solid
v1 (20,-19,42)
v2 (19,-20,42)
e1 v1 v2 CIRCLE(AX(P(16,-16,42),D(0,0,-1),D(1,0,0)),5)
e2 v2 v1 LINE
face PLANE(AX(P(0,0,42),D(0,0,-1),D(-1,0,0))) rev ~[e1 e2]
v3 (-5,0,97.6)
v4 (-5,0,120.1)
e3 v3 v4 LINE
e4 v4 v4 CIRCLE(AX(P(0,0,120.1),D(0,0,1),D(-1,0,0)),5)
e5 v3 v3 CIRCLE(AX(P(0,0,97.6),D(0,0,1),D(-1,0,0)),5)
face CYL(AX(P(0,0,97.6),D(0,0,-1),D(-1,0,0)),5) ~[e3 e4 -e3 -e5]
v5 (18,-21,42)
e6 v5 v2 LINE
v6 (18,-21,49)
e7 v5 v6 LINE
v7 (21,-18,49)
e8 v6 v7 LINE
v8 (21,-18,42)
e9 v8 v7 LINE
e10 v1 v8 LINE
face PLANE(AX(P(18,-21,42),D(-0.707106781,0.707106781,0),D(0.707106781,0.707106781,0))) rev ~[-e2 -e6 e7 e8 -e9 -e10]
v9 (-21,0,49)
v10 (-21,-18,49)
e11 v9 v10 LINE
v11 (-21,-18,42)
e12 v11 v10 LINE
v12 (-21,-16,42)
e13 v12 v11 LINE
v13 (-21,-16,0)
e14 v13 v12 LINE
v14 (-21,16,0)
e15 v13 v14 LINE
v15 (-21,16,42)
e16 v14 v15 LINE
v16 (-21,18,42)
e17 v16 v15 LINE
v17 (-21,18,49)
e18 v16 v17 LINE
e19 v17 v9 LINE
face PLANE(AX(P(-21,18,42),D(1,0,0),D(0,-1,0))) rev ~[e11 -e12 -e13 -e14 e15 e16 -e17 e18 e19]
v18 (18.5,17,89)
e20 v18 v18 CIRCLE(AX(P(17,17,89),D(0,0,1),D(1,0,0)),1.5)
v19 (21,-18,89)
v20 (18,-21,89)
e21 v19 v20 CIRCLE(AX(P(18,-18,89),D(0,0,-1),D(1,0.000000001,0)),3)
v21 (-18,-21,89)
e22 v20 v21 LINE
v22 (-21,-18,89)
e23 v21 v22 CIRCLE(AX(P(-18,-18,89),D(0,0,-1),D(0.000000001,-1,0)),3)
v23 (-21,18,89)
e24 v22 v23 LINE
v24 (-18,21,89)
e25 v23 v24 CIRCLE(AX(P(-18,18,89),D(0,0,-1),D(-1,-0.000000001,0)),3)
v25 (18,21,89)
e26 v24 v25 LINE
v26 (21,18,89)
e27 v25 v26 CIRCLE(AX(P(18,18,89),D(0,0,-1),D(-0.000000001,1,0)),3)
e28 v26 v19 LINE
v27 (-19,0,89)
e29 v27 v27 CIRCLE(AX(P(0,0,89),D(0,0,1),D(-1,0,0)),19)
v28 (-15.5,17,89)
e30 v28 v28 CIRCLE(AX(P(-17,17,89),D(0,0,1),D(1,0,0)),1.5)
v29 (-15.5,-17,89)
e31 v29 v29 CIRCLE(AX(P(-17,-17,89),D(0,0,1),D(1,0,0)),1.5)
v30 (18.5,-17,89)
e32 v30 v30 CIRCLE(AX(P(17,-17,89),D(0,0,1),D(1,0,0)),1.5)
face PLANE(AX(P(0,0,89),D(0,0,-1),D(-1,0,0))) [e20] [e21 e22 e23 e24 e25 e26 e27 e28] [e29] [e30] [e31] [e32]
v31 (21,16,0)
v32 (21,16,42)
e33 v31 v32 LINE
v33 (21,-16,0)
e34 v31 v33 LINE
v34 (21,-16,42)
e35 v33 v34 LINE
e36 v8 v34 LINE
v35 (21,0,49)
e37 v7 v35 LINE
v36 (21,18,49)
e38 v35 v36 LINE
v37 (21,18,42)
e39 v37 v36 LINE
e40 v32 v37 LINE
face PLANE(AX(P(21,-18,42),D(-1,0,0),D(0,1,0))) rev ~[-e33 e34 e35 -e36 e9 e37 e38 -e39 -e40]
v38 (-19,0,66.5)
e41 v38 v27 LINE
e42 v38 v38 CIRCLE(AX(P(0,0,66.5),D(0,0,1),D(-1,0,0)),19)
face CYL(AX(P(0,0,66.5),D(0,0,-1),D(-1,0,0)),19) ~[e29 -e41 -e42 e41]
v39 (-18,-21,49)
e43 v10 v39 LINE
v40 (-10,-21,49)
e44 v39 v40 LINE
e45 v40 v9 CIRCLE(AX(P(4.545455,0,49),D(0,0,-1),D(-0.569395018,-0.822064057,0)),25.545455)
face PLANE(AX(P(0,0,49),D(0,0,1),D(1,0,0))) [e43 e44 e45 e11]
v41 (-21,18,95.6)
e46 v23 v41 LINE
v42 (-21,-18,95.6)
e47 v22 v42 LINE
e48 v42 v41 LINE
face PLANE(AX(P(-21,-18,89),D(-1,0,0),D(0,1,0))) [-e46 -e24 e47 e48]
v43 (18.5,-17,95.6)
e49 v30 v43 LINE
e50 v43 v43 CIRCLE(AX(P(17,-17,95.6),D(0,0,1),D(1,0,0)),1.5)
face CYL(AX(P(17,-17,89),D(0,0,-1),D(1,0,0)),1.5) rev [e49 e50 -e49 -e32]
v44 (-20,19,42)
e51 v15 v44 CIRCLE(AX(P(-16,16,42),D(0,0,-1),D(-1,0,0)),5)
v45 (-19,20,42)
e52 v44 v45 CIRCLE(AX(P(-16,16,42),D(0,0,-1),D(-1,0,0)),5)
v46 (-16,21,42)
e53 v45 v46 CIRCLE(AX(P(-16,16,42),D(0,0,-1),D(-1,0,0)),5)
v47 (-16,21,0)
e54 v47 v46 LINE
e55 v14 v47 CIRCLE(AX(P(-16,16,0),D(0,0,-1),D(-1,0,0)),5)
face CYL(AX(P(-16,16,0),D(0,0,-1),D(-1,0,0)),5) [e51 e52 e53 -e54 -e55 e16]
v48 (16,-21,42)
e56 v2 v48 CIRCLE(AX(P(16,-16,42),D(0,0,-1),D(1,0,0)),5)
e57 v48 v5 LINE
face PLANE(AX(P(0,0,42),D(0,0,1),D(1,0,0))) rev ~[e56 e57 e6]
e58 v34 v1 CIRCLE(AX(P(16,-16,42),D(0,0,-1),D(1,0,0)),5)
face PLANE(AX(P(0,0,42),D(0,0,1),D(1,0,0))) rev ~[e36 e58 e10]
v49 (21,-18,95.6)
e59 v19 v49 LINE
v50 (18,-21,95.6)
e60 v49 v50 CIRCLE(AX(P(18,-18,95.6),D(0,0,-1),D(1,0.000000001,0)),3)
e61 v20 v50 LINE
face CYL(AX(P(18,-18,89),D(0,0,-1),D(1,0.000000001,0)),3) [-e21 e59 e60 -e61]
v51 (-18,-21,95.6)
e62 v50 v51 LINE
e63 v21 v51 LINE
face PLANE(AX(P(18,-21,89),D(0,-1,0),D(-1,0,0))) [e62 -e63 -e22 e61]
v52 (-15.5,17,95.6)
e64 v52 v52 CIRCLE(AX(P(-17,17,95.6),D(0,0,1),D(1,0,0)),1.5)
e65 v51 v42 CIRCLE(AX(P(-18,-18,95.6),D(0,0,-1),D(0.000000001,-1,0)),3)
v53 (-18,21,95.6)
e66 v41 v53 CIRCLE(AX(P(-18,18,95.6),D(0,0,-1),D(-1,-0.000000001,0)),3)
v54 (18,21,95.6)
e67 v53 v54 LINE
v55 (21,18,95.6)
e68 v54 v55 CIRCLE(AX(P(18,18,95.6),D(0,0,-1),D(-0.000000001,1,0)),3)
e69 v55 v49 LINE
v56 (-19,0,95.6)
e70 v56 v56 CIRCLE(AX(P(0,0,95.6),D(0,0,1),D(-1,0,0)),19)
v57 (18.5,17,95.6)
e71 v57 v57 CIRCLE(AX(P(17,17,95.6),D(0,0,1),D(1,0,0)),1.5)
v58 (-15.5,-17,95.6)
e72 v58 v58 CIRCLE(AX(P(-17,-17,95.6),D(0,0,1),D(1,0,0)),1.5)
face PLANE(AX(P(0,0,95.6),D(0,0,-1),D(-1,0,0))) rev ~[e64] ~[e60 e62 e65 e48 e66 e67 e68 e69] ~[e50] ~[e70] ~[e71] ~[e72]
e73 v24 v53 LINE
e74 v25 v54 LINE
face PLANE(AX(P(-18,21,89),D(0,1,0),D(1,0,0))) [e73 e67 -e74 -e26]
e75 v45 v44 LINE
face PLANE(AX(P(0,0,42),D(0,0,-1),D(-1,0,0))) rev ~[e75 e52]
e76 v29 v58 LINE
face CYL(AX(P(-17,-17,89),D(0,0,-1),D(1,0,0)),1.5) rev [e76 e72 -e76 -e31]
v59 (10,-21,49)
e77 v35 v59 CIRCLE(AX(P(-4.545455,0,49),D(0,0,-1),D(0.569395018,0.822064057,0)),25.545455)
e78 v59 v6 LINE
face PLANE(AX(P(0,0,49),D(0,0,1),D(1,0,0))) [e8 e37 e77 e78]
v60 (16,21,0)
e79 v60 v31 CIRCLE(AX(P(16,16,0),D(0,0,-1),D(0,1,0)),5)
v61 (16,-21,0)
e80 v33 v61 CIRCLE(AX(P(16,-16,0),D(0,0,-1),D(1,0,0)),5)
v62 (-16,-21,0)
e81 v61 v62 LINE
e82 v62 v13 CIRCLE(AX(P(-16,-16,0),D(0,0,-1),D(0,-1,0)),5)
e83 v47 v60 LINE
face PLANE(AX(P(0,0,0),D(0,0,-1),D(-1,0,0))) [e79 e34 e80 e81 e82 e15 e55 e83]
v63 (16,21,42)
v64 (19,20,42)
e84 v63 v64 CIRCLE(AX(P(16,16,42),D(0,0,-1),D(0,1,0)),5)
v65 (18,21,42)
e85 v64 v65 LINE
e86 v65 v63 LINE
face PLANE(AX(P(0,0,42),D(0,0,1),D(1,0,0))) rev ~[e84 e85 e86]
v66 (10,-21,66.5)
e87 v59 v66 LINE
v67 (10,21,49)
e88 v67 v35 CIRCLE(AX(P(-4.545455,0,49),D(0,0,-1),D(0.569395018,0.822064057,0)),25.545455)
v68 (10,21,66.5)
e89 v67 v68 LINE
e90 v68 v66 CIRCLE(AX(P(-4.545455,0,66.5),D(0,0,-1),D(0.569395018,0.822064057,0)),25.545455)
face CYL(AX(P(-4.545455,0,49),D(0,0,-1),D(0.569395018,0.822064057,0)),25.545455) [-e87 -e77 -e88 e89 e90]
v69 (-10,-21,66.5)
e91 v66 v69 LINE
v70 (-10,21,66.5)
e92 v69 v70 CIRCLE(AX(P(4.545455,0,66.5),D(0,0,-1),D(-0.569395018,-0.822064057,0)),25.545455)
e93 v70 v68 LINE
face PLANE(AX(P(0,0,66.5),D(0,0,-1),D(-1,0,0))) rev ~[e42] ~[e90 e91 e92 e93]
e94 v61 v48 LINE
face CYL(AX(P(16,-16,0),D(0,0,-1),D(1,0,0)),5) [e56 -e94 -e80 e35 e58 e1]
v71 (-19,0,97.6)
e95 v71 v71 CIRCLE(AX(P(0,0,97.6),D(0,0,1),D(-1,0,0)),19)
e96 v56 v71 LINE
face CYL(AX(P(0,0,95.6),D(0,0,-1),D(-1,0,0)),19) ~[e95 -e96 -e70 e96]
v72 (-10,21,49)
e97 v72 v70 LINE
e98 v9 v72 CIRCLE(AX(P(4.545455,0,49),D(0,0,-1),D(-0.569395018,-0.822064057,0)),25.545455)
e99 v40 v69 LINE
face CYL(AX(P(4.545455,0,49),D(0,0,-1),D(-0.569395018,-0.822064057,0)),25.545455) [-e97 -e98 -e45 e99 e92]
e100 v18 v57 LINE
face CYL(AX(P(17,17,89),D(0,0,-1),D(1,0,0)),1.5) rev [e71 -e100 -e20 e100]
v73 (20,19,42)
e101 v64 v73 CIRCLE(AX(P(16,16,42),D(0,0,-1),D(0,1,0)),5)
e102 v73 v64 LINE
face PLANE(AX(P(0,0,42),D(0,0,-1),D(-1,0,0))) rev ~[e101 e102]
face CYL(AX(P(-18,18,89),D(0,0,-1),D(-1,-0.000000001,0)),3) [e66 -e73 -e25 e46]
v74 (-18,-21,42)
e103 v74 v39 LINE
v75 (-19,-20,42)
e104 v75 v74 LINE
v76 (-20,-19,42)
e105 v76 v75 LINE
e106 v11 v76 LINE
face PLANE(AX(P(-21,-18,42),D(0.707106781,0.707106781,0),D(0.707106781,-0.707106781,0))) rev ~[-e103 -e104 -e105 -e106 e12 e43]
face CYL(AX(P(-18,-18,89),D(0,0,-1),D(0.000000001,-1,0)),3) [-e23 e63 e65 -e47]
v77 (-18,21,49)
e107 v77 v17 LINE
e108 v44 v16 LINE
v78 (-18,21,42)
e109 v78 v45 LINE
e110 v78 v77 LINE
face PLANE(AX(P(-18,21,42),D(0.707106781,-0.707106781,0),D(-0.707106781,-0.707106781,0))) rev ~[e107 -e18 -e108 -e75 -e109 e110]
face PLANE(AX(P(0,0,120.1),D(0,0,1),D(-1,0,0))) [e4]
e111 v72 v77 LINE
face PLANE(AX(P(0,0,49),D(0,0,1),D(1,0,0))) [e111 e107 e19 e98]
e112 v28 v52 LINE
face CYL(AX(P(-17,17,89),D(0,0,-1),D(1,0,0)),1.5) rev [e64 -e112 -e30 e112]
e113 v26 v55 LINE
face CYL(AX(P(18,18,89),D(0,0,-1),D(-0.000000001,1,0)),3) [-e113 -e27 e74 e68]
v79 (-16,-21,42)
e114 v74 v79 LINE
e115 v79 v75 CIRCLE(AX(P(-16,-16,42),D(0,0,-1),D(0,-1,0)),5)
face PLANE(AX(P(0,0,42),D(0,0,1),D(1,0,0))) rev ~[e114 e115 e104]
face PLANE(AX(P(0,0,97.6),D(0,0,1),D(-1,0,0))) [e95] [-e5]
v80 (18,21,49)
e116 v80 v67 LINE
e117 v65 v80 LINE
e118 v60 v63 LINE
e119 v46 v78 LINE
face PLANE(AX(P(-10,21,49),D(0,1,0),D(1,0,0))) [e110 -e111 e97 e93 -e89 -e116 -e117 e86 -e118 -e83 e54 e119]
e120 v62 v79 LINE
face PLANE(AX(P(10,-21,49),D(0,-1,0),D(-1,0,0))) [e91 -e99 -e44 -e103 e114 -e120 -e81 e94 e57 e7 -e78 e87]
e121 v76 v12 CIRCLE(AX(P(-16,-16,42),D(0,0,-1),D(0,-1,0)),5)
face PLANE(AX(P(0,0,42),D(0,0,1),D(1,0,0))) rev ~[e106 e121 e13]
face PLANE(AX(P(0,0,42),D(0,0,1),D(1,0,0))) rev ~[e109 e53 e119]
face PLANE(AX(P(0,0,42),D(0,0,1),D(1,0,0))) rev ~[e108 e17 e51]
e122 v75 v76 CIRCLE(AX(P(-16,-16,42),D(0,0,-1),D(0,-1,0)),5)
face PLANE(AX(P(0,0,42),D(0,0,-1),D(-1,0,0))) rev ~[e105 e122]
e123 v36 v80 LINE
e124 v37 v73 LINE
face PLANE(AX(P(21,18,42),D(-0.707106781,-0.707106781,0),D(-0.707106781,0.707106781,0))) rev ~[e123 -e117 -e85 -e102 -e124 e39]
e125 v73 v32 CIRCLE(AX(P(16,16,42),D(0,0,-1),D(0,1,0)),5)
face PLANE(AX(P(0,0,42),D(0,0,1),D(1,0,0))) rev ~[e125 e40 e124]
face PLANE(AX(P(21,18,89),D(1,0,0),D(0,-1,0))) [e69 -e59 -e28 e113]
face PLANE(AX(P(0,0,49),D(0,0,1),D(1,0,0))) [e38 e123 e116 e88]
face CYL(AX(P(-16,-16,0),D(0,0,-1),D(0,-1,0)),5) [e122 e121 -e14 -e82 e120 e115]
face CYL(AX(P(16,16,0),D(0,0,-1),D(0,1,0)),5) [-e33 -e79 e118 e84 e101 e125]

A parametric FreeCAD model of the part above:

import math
import FreeCAD as App
import Part
import Sketcher
from FreeCAD import Vector
Q = App.Units.Quantity


def add_polygon(sketch, points):
    """Adds a closed chain of lines whose ends are joined by coincident constraints."""
    first, n = sketch.GeometryCount, len(points)
    for a, b in zip(points, points[1:] + points[:1]):
        sketch.addGeometry(Part.LineSegment(App.Vector(*a, 0), App.Vector(*b, 0)), False)
    for i in range(n):
        sketch.addConstraint(Sketcher.Constraint("Coincident", first + i, 2, first + (i + 1) % n, 1))

doc = App.newDocument("Part")
body = doc.addObject("PartDesign::Body", "Body")

# Sketch on XY plane
sketch1 = body.newObject("Sketcher::SketchObject", "Sketch")
sketch1.AttachmentSupport = (doc.getObject("XY_Plane"), [""])
sketch1.MapMode = "FlatFace"
sketch1.addGeometry([
    Part.LineSegment(Vector(16, 21, 0), Vector(-16, 21, 0)),  # 0
    Part.ArcOfCircle(Part.Circle(Vector(-16, 16, 0), Vector(0, 0, 1), 5), math.radians(90), math.radians(180)),  # 1
    Part.LineSegment(Vector(-21, 16, 0), Vector(-21, -16, 0)),  # 2
    Part.ArcOfCircle(Part.Circle(Vector(-16, -16, 0), Vector(0, 0, 1), 5), math.radians(180), math.radians(270)),  # 3
    Part.LineSegment(Vector(-16, -21, 0), Vector(16, -21, 0)),  # 4
    Part.ArcOfCircle(Part.Circle(Vector(16, -16, 0), Vector(0, 0, 1), 5), math.radians(-90), math.radians(0)),  # 5
    Part.LineSegment(Vector(21, -16, 0), Vector(21, 16, 0)),  # 6
    Part.ArcOfCircle(Part.Circle(Vector(16, 16, 0), Vector(0, 0, 1), 5), math.radians(0), math.radians(90)),  # 7
], False)
sketch1.addConstraint([
    Sketcher.Constraint("Tangent", 0, 2, 1, 1),
    Sketcher.Constraint("Tangent", 1, 2, 2, 1),
    Sketcher.Constraint("Tangent", 2, 2, 3, 1),
    Sketcher.Constraint("Tangent", 3, 2, 4, 1),
    Sketcher.Constraint("Tangent", 4, 2, 5, 1),
    Sketcher.Constraint("Tangent", 5, 2, 6, 1),
    Sketcher.Constraint("Tangent", 6, 2, 7, 1),
    Sketcher.Constraint("Tangent", 7, 2, 0, 1),
    Sketcher.Constraint("Horizontal", 0),
    Sketcher.Constraint("Vertical", 2),
    Sketcher.Constraint("Horizontal", 4),
    Sketcher.Constraint("Vertical", 6),
    Sketcher.Constraint("Equal", 1, 3),
    Sketcher.Constraint("Equal", 3, 5),
    Sketcher.Constraint("Equal", 5, 7),
    Sketcher.Constraint("Symmetric", 1, 3, 5, 3, -1, 1),
    Sketcher.Constraint("Equal", 4, 2),
    Sketcher.Constraint("Radius", 1, Q("5 mm")),
    Sketcher.Constraint("DistanceX", 0, 2, 0, 1, Q("32 mm")),
])
pad1 = body.newObject("PartDesign::Pad", "Pad")
pad1.Profile = sketch1
pad1.Length = 42

# Sketch on XY plane
sketch2 = body.newObject("Sketcher::SketchObject", "Sketch001")
sketch2.AttachmentSupport = (doc.getObject("XY_Plane"), [""])
sketch2.MapMode = "FlatFace"
sketch2.AttachmentOffset = App.Placement(Vector(0, 0, 42), App.Rotation())
add_polygon(sketch2, [(18, 21), (-18, 21), (-21, 18), (-21, -18), (-18, -21), (18, -21), (21, -18), (21, 18)])  # lines 0-7
sketch2.addConstraint([
    Sketcher.Constraint("Horizontal", 0),
    Sketcher.Constraint("Vertical", 2),
    Sketcher.Constraint("Horizontal", 4),
    Sketcher.Constraint("Vertical", 6),
    Sketcher.Constraint("Symmetric", 0, 2, 4, 2, -1, 1),
    Sketcher.Constraint("Symmetric", 1, 2, 5, 2, -1, 1),
    Sketcher.Constraint("Perpendicular", 1, 3),
    Sketcher.Constraint("Perpendicular", 5, 7),
    Sketcher.Constraint("Horizontal", 2, 2, 5, 2),
    Sketcher.Constraint("Horizontal", 1, 2, 6, 2),
    Sketcher.Constraint("Vertical", 0, 2, 3, 2),
    Sketcher.Constraint("Equal", 4, 2),
    Sketcher.Constraint("DistanceX", 0, 2, 0, 1, Q("36 mm")),
    Sketcher.Constraint("DistanceY", -1, 1, 0, 2, Q("21 mm")),
])
pad2 = body.newObject("PartDesign::Pad", "Pad001")
pad2.Profile = sketch2
pad2.Length = 7

# Sketch on XY plane
sketch3 = body.newObject("Sketcher::SketchObject", "Sketch002")
sketch3.AttachmentSupport = (doc.getObject("XY_Plane"), [""])
sketch3.MapMode = "FlatFace"
sketch3.AttachmentOffset = App.Placement(Vector(0, 0, 49), App.Rotation())
sketch3.addGeometry([
    Part.LineSegment(Vector(10, 21, 0), Vector(-10, 21, 0)),
    Part.ArcOfCircle(Part.Circle(Vector(5, 0, 0), Vector(0, 0, 1), 26), math.radians(125), math.radians(235)),
    Part.LineSegment(Vector(-10, -21, 0), Vector(10, -21, 0)),
    Part.ArcOfCircle(Part.Circle(Vector(-5, 0, 0), Vector(0, 0, 1), 26), math.radians(-55), math.radians(55)),
], False)
sketch3.addConstraint([
    Sketcher.Constraint("Coincident", 0, 2, 1, 1),
    Sketcher.Constraint("Coincident", 1, 2, 2, 1),
    Sketcher.Constraint("Coincident", 2, 2, 3, 1),
    Sketcher.Constraint("Coincident", 3, 2, 0, 1),
    Sketcher.Constraint("Horizontal", 0),
    Sketcher.Constraint("Horizontal", 2),
    Sketcher.Constraint("Equal", 1, 3),
    Sketcher.Constraint("Symmetric", 1, 3, 3, 3, -1, 1),
    Sketcher.Constraint("Symmetric", 0, 2, 1, 2, -1),
    Sketcher.Constraint("DistanceX", 0, 2, 0, 1, Q("20 mm")),
    Sketcher.Constraint("DistanceY", -1, 1, 0, 2, Q("21 mm")),
    Sketcher.Constraint("Radius", 1, Q("25.545455 mm")),
])
pad3 = body.newObject("PartDesign::Pad", "Pad002")
pad3.Profile = sketch3
pad3.Length = 17.5

# Sketch on XY plane
sketch4 = body.newObject("Sketcher::SketchObject", "Sketch003")
sketch4.AttachmentSupport = (doc.getObject("XY_Plane"), [""])
sketch4.MapMode = "FlatFace"
sketch4.AttachmentOffset = App.Placement(Vector(0, 0, 66.5), App.Rotation())
sketch4.addGeometry(Part.Circle(Vector(0, 0, 0), Vector(0, 0, 1), 19), False)
sketch4.addConstraint([
    Sketcher.Constraint("Coincident", 0, 3, -1, 1),
    Sketcher.Constraint("Diameter", 0, Q("38 mm")),
])
pad4 = body.newObject("PartDesign::Pad", "Pad003")
pad4.Profile = sketch4
pad4.Length = 22.5

# Sketch on XY plane
sketch5 = body.newObject("Sketcher::SketchObject", "Sketch004")
sketch5.AttachmentSupport = (doc.getObject("XY_Plane"), [""])
sketch5.MapMode = "FlatFace"
sketch5.AttachmentOffset = App.Placement(Vector(0, 0, 89), App.Rotation())
sketch5.addGeometry([
    Part.LineSegment(Vector(18, 21, 0), Vector(-18, 21, 0)),  # 0
    Part.ArcOfCircle(Part.Circle(Vector(-18, 18, 0), Vector(0, 0, 1), 3), math.radians(90), math.radians(180)),  # 1
    Part.LineSegment(Vector(-21, 18, 0), Vector(-21, -18, 0)),  # 2
    Part.ArcOfCircle(Part.Circle(Vector(-18, -18, 0), Vector(0, 0, 1), 3), math.radians(180), math.radians(270)),  # 3
    Part.LineSegment(Vector(-18, -21, 0), Vector(18, -21, 0)),  # 4
    Part.ArcOfCircle(Part.Circle(Vector(18, -18, 0), Vector(0, 0, 1), 3), math.radians(-90), math.radians(0)),  # 5
    Part.LineSegment(Vector(21, -18, 0), Vector(21, 18, 0)),  # 6
    Part.ArcOfCircle(Part.Circle(Vector(18, 18, 0), Vector(0, 0, 1), 3), math.radians(0), math.radians(90)),  # 7
    Part.Circle(Vector(17, -17, 0), Vector(0, 0, 1), 1.5),  # 8
    Part.Circle(Vector(-17, -17, 0), Vector(0, 0, 1), 1.5),  # 9
    Part.Circle(Vector(17, 17, 0), Vector(0, 0, 1), 1.5),  # 10
    Part.Circle(Vector(-17, 17, 0), Vector(0, 0, 1), 1.5),  # 11
], False)
sketch5.addConstraint([
    Sketcher.Constraint("Tangent", 0, 2, 1, 1),
    Sketcher.Constraint("Tangent", 1, 2, 2, 1),
    Sketcher.Constraint("Tangent", 2, 2, 3, 1),
    Sketcher.Constraint("Tangent", 3, 2, 4, 1),
    Sketcher.Constraint("Tangent", 4, 2, 5, 1),
    Sketcher.Constraint("Tangent", 5, 2, 6, 1),
    Sketcher.Constraint("Tangent", 6, 2, 7, 1),
    Sketcher.Constraint("Tangent", 7, 2, 0, 1),
    Sketcher.Constraint("Horizontal", 0),
    Sketcher.Constraint("Vertical", 2),
    Sketcher.Constraint("Horizontal", 4),
    Sketcher.Constraint("Vertical", 6),
    Sketcher.Constraint("Equal", 1, 3),
    Sketcher.Constraint("Equal", 3, 5),
    Sketcher.Constraint("Equal", 5, 7),
    Sketcher.Constraint("Equal", 8, 9),
    Sketcher.Constraint("Equal", 9, 10),
    Sketcher.Constraint("Equal", 10, 11),
    Sketcher.Constraint("Symmetric", 1, 3, 5, 3, -1, 1),
    Sketcher.Constraint("Symmetric", 9, 3, 10, 3, -1, 1),
    Sketcher.Constraint("Symmetric", 8, 3, 11, 3, -1, 1),
    Sketcher.Constraint("Symmetric", 8, 3, 9, 3, -2),
    Sketcher.Constraint("Equal", 4, 2),
    Sketcher.Constraint("Diameter", 8, Q("3 mm")),
    Sketcher.Constraint("Radius", 1, Q("3 mm")),
    Sketcher.Constraint("DistanceX", 0, 2, 0, 1, Q("36 mm")),
    Sketcher.Constraint("DistanceX", -1, 1, 8, 3, Q("17 mm")),
    Sketcher.Constraint("DistanceY", 8, 3, -1, 1, Q("17 mm")),
])
pad5 = body.newObject("PartDesign::Pad", "Pad004")
pad5.Profile = sketch5
pad5.Length = 6.6

# Sketch on XY plane
sketch6 = body.newObject("Sketcher::SketchObject", "Sketch005")
sketch6.AttachmentSupport = (doc.getObject("XY_Plane"), [""])
sketch6.MapMode = "FlatFace"
sketch6.AttachmentOffset = App.Placement(Vector(0, 0, 95.6), App.Rotation())
sketch6.addGeometry(Part.Circle(Vector(0, 0, 0), Vector(0, 0, 1), 19), False)
sketch6.addConstraint([
    Sketcher.Constraint("Coincident", 0, 3, -1, 1),
    Sketcher.Constraint("Diameter", 0, Q("38 mm")),
])
pad6 = body.newObject("PartDesign::Pad", "Pad005")
pad6.Profile = sketch6
pad6.Length = 2

# Sketch on XY plane
sketch7 = body.newObject("Sketcher::SketchObject", "Sketch006")
sketch7.AttachmentSupport = (doc.getObject("XY_Plane"), [""])
sketch7.MapMode = "FlatFace"
sketch7.AttachmentOffset = App.Placement(Vector(0, 0, 97.6), App.Rotation())
sketch7.addGeometry(Part.Circle(Vector(0, 0, 0), Vector(0, 0, 1), 5), False)
sketch7.addConstraint([
    Sketcher.Constraint("Coincident", 0, 3, -1, 1),
    Sketcher.Constraint("Diameter", 0, Q("10 mm")),
])
pad7 = body.newObject("PartDesign::Pad", "Pad006")
pad7.Profile = sketch7
pad7.Length = 22.5

doc.recompute()
